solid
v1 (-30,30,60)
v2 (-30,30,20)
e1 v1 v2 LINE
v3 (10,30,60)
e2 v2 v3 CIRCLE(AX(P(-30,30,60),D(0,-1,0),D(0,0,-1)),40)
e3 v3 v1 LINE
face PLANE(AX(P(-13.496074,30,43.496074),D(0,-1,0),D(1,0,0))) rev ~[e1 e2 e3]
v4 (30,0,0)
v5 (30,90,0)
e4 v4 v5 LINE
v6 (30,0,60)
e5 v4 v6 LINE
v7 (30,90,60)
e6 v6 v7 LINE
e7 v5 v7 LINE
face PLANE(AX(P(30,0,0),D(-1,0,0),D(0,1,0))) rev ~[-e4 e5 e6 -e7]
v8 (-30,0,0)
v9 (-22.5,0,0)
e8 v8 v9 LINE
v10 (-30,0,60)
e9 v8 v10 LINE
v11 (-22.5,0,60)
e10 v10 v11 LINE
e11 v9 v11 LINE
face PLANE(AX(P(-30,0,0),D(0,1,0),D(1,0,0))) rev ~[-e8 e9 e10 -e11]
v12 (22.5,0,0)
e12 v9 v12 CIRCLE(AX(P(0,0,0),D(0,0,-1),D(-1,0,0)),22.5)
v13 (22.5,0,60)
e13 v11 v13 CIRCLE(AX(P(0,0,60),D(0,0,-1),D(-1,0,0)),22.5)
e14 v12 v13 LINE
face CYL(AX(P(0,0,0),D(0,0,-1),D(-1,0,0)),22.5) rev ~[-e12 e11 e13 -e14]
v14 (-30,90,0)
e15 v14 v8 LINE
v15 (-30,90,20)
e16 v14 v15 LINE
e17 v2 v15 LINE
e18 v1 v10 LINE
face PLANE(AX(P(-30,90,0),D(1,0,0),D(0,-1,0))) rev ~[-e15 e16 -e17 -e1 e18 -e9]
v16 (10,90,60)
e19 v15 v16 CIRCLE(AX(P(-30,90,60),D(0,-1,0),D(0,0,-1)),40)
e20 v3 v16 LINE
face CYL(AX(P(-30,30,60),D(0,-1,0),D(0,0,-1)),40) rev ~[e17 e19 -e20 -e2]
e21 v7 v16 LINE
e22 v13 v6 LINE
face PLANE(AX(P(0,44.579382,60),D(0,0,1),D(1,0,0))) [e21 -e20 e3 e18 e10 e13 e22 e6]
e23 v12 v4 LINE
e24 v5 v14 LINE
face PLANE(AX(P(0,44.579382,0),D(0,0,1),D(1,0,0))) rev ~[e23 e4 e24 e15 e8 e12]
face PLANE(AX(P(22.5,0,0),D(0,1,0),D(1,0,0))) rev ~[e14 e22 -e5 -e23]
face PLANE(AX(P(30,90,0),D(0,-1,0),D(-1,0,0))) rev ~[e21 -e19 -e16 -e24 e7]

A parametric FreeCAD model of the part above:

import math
import FreeCAD as App
import Part
import Sketcher

doc = App.newDocument("Part")
body = doc.addObject("PartDesign::Body", "Body")

sketch1 = body.newObject("Sketcher::SketchObject", "Sketch")
sketch1.AttachmentSupport = (doc.getObject("XY_Plane"), [""])
sketch1.MapMode = "FlatFace"
sketch1.addGeometry([
    Part.LineSegment(App.Vector(-30, 90, 0), App.Vector(-30, 0, 0)),
    Part.LineSegment(App.Vector(-30, 0, 0), App.Vector(-22.5, 0, 0)),
    Part.ArcOfCircle(Part.Circle(App.Vector(0, 0, 0), App.Vector(0, 0, 1), 22.5), math.radians(0), math.radians(180)),
    Part.LineSegment(App.Vector(22.5, 0, 0), App.Vector(30, 0, 0)),
    Part.LineSegment(App.Vector(30, 0, 0), App.Vector(30, 90, 0)),
    Part.LineSegment(App.Vector(30, 90, 0), App.Vector(-30, 90, 0)),
], False)
sketch1.addConstraint([
    Sketcher.Constraint("Coincident", 0, 2, 1, 1),
    Sketcher.Constraint("Coincident", 1, 2, 2, 2),
    Sketcher.Constraint("Coincident", 2, 1, 3, 1),
    Sketcher.Constraint("Coincident", 3, 2, 4, 1),
    Sketcher.Constraint("Coincident", 4, 2, 5, 1),
    Sketcher.Constraint("Coincident", 5, 2, 0, 1),
    Sketcher.Constraint("Vertical", 0),
    Sketcher.Constraint("Horizontal", 1),
    Sketcher.Constraint("Horizontal", 3),
    Sketcher.Constraint("Vertical", 4),
    Sketcher.Constraint("Horizontal", 5),
    Sketcher.Constraint("Coincident", 2, 3, -1, 1),
    Sketcher.Constraint("Symmetric", 0, 2, 3, 2, -1, 1),
    Sketcher.Constraint("PointOnObject", 0, 2, -1),
    Sketcher.Constraint("Radius", 2, 22.5),
    Sketcher.Constraint("DistanceX", 5, 2, 5, 1, 60.0),
    Sketcher.Constraint("DistanceY", 0, 2, 0, 1, 90.0),
])
pad1 = body.newObject("PartDesign::Pad", "Pad")
pad1.Profile = sketch1
pad1.Length = 60

sketch2 = body.newObject("Sketcher::SketchObject", "Sketch001")
sketch2.AttachmentSupport = (doc.getObject("XZ_Plane"), [""])
sketch2.MapMode = "FlatFace"
sketch2.AttachmentOffset = App.Placement(App.Vector(0, 0, -30), App.Rotation())
sketch2.addGeometry([
    Part.LineSegment(App.Vector(-30, 60, 0), App.Vector(-30, 20, 0)),
    Part.ArcOfCircle(Part.Circle(App.Vector(-30, 60, 0), App.Vector(0, 0, 1), 40), math.radians(-90), math.radians(0)),
    Part.LineSegment(App.Vector(10, 60, 0), App.Vector(-30, 60, 0)),
], False)
sketch2.addConstraint([
    Sketcher.Constraint("Coincident", 0, 2, 1, 1),
    Sketcher.Constraint("Coincident", 1, 2, 2, 1),
    Sketcher.Constraint("Coincident", 2, 2, 0, 1),
    Sketcher.Constraint("Vertical", 0),
    Sketcher.Constraint("Horizontal", 2),
    Sketcher.Constraint("Coincident", 2, 2, 1, 3),
    Sketcher.Constraint("Radius", 1, 40.0),
    Sketcher.Constraint("DistanceX", 1, 3, -1, 1, 30.0),
    Sketcher.Constraint("DistanceY", -1, 1, 1, 3, 60.0),
])
pocket1 = body.newObject("PartDesign::Pocket", "Pocket")
pocket1.Profile = sketch2
pocket1.Length = 60

doc.recompute()
